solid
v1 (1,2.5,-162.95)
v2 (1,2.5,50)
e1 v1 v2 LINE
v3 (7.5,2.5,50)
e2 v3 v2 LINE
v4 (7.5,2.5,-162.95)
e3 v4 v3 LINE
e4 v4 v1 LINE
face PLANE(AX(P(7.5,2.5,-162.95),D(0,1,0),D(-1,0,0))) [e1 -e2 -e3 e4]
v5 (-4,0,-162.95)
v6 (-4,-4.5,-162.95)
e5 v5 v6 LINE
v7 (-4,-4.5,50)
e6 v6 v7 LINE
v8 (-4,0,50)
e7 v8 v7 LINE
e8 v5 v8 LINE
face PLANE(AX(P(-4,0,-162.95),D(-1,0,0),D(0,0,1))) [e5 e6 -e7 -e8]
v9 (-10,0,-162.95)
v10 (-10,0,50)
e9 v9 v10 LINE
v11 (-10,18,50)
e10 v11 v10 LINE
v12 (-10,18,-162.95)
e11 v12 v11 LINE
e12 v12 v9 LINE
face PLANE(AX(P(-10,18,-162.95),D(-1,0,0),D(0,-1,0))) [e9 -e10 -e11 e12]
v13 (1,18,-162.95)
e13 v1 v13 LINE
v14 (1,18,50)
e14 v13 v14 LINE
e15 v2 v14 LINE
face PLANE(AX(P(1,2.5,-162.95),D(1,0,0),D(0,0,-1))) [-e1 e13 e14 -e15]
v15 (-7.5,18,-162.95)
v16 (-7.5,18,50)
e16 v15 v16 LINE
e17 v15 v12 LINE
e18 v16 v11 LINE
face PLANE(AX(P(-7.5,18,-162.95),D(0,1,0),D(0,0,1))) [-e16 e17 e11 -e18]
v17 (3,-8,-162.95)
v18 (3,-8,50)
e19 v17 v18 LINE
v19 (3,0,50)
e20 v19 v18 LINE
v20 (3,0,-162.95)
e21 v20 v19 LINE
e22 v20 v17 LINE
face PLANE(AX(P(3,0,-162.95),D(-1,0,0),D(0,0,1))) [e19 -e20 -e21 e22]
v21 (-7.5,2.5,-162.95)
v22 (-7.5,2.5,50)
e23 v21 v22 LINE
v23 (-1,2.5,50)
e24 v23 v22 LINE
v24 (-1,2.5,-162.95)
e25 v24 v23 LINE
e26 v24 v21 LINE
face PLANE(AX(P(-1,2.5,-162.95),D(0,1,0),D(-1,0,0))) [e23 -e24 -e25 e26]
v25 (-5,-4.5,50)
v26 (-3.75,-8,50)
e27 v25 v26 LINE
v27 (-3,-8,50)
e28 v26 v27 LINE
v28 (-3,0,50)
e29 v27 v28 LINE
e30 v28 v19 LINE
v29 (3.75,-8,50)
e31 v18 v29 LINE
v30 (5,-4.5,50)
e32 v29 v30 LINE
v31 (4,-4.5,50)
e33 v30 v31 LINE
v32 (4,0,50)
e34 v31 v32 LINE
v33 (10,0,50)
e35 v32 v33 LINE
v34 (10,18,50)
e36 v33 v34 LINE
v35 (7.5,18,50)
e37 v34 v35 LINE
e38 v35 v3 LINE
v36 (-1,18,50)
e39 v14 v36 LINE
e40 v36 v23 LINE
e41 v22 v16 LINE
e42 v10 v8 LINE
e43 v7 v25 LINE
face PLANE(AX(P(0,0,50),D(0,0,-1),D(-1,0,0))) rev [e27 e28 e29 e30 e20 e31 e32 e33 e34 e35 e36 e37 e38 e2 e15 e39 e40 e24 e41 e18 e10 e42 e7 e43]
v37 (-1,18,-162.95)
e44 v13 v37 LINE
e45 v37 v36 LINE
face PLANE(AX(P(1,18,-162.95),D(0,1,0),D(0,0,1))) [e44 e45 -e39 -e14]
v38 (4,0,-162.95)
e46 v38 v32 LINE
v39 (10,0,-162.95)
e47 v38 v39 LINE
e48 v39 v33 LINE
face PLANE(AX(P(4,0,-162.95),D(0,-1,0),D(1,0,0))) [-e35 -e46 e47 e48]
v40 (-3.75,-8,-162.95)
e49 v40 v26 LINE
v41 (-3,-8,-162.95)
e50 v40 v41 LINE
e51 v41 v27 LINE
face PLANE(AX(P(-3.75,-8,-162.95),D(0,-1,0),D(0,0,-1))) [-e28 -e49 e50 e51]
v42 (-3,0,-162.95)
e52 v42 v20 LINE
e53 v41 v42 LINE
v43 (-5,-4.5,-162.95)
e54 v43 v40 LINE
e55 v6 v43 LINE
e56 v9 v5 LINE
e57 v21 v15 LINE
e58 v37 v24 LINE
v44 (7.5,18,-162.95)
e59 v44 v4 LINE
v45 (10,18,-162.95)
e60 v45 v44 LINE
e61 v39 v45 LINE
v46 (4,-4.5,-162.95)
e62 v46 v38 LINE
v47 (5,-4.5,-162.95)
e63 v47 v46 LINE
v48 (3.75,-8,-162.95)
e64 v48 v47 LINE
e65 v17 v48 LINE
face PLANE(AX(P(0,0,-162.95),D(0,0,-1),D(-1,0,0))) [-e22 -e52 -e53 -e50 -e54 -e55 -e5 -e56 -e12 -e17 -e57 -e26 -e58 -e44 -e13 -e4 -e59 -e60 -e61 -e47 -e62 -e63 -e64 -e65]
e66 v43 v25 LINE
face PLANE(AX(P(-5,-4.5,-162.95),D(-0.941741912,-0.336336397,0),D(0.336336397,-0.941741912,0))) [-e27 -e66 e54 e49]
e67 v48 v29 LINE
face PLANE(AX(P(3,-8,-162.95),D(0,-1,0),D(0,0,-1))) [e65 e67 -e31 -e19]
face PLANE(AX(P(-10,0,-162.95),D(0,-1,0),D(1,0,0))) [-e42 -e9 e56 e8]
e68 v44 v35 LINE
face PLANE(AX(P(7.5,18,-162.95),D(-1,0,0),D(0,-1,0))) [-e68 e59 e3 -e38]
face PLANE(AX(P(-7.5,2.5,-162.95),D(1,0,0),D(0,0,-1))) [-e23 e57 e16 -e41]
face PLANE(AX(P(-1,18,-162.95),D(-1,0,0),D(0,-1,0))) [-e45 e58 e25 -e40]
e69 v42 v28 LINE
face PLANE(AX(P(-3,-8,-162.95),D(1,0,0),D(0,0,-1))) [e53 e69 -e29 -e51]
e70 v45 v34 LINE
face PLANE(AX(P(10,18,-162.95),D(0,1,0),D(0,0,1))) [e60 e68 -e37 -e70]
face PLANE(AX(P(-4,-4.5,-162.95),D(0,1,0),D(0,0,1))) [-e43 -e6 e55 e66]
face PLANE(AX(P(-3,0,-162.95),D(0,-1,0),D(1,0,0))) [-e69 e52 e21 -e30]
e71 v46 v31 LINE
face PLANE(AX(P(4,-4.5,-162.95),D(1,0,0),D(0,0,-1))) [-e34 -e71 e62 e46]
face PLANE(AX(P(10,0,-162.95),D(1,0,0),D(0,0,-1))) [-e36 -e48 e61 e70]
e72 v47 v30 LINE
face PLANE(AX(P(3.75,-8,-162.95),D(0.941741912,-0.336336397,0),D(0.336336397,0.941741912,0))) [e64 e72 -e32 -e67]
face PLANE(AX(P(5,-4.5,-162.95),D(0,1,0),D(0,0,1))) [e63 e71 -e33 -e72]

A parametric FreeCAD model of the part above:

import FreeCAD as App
import Part
import Sketcher

V = App.Vector

doc = App.newDocument("Part")
body = doc.addObject("PartDesign::Body", "Body")

# Sketch on XY plane
sketch1 = body.newObject("Sketcher::SketchObject", "Sketch")
sketch1.AttachmentSupport = (doc.getObject("XY_Plane"), [""])
sketch1.MapMode = "FlatFace"
sketch1.AttachmentOffset = App.Placement(V(0, 0, 50), App.Rotation())
sketch1.addGeometry(Part.LineSegment(V(-1, 2.5, 0), V(-7.5, 2.5, 0)), False)
sketch1.addGeometry(Part.LineSegment(V(-7.5, 2.5, 0), V(-7.5, 18, 0)), False)
sketch1.addGeometry(Part.LineSegment(V(-7.5, 18, 0), V(-10, 18, 0)), False)
sketch1.addGeometry(Part.LineSegment(V(-10, 18, 0), V(-10, 0, 0)), False)
sketch1.addGeometry(Part.LineSegment(V(-10, 0, 0), V(-4, 0, 0)), False)
sketch1.addGeometry(Part.LineSegment(V(-4, 0, 0), V(-4, -4.5, 0)), False)
sketch1.addGeometry(Part.LineSegment(V(-4, -4.5, 0), V(-5, -4.5, 0)), False)
sketch1.addGeometry(Part.LineSegment(V(-5, -4.5, 0), V(-3.8, -8, 0)), False)
sketch1.addGeometry(Part.LineSegment(V(-3.8, -8, 0), V(-3, -8, 0)), False)
sketch1.addGeometry(Part.LineSegment(V(-3, -8, 0), V(-3, 0, 0)), False)
sketch1.addGeometry(Part.LineSegment(V(-3, 0, 0), V(3, 0, 0)), False)
sketch1.addGeometry(Part.LineSegment(V(3, 0, 0), V(3, -8, 0)), False)
sketch1.addGeometry(Part.LineSegment(V(3, -8, 0), V(3.8, -8, 0)), False)
sketch1.addGeometry(Part.LineSegment(V(3.8, -8, 0), V(5, -4.5, 0)), False)
sketch1.addGeometry(Part.LineSegment(V(5, -4.5, 0), V(4, -4.5, 0)), False)
sketch1.addGeometry(Part.LineSegment(V(4, -4.5, 0), V(4, 0, 0)), False)
sketch1.addGeometry(Part.LineSegment(V(4, 0, 0), V(10, 0, 0)), False)
sketch1.addGeometry(Part.LineSegment(V(10, 0, 0), V(10, 18, 0)), False)
sketch1.addGeometry(Part.LineSegment(V(10, 18, 0), V(7.5, 18, 0)), False)
sketch1.addGeometry(Part.LineSegment(V(7.5, 18, 0), V(7.5, 2.5, 0)), False)
sketch1.addGeometry(Part.LineSegment(V(7.5, 2.5, 0), V(1, 2.5, 0)), False)
sketch1.addGeometry(Part.LineSegment(V(1, 2.5, 0), V(1, 18, 0)), False)
sketch1.addGeometry(Part.LineSegment(V(1, 18, 0), V(-1, 18, 0)), False)
sketch1.addGeometry(Part.LineSegment(V(-1, 18, 0), V(-1, 2.5, 0)), False)
sketch1.addConstraint(Sketcher.Constraint("Coincident", 0, 2, 1, 1))
sketch1.addConstraint(Sketcher.Constraint("Coincident", 1, 2, 2, 1))
sketch1.addConstraint(Sketcher.Constraint("Coincident", 2, 2, 3, 1))
sketch1.addConstraint(Sketcher.Constraint("Coincident", 3, 2, 4, 1))
sketch1.addConstraint(Sketcher.Constraint("Coincident", 4, 2, 5, 1))
sketch1.addConstraint(Sketcher.Constraint("Coincident", 5, 2, 6, 1))
sketch1.addConstraint(Sketcher.Constraint("Coincident", 6, 2, 7, 1))
sketch1.addConstraint(Sketcher.Constraint("Coincident", 7, 2, 8, 1))
sketch1.addConstraint(Sketcher.Constraint("Coincident", 8, 2, 9, 1))
sketch1.addConstraint(Sketcher.Constraint("Coincident", 9, 2, 10, 1))
sketch1.addConstraint(Sketcher.Constraint("Coincident", 10, 2, 11, 1))
sketch1.addConstraint(Sketcher.Constraint("Coincident", 11, 2, 12, 1))
sketch1.addConstraint(Sketcher.Constraint("Coincident", 12, 2, 13, 1))
sketch1.addConstraint(Sketcher.Constraint("Coincident", 13, 2, 14, 1))
sketch1.addConstraint(Sketcher.Constraint("Coincident", 14, 2, 15, 1))
sketch1.addConstraint(Sketcher.Constraint("Coincident", 15, 2, 16, 1))
sketch1.addConstraint(Sketcher.Constraint("Coincident", 16, 2, 17, 1))
sketch1.addConstraint(Sketcher.Constraint("Coincident", 17, 2, 18, 1))
sketch1.addConstraint(Sketcher.Constraint("Coincident", 18, 2, 19, 1))
sketch1.addConstraint(Sketcher.Constraint("Coincident", 19, 2, 20, 1))
sketch1.addConstraint(Sketcher.Constraint("Coincident", 20, 2, 21, 1))
sketch1.addConstraint(Sketcher.Constraint("Coincident", 21, 2, 22, 1))
sketch1.addConstraint(Sketcher.Constraint("Coincident", 22, 2, 23, 1))
sketch1.addConstraint(Sketcher.Constraint("Coincident", 23, 2, 0, 1))
sketch1.addConstraint(Sketcher.Constraint("Horizontal", 0))
sketch1.addConstraint(Sketcher.Constraint("Vertical", 1))
sketch1.addConstraint(Sketcher.Constraint("Horizontal", 2))
sketch1.addConstraint(Sketcher.Constraint("Vertical", 3))
sketch1.addConstraint(Sketcher.Constraint("Horizontal", 4))
sketch1.addConstraint(Sketcher.Constraint("Vertical", 5))
sketch1.addConstraint(Sketcher.Constraint("Horizontal", 6))
sketch1.addConstraint(Sketcher.Constraint("Horizontal", 8))
sketch1.addConstraint(Sketcher.Constraint("Vertical", 9))
sketch1.addConstraint(Sketcher.Constraint("Horizontal", 10))
sketch1.addConstraint(Sketcher.Constraint("Vertical", 11))
sketch1.addConstraint(Sketcher.Constraint("Horizontal", 12))
sketch1.addConstraint(Sketcher.Constraint("Horizontal", 14))
sketch1.addConstraint(Sketcher.Constraint("Vertical", 15))
sketch1.addConstraint(Sketcher.Constraint("Horizontal", 16))
sketch1.addConstraint(Sketcher.Constraint("Vertical", 17))
sketch1.addConstraint(Sketcher.Constraint("Horizontal", 18))
sketch1.addConstraint(Sketcher.Constraint("Vertical", 19))
sketch1.addConstraint(Sketcher.Constraint("Horizontal", 20))
sketch1.addConstraint(Sketcher.Constraint("Vertical", 21))
sketch1.addConstraint(Sketcher.Constraint("Horizontal", 22))
sketch1.addConstraint(Sketcher.Constraint("Vertical", 23))
sketch1.addConstraint(Sketcher.Constraint("Symmetric", 9, 2, 10, 2, -1, 1))
sketch1.addConstraint(Sketcher.Constraint("Symmetric", 4, 2, 15, 2, -1, 1))
sketch1.addConstraint(Sketcher.Constraint("Symmetric", 7, 2, 12, 2, -2))
sketch1.addConstraint(Sketcher.Constraint("Symmetric", 6, 2, 13, 2, -2))
sketch1.addConstraint(Sketcher.Constraint("Symmetric", 3, 2, 16, 2, -2))
sketch1.addConstraint(Sketcher.Constraint("Symmetric", 1, 2, 18, 2, -2))
sketch1.addConstraint(Sketcher.Constraint("Symmetric", 20, 2, 23, 2, -2))
sketch1.addConstraint(Sketcher.Constraint("Horizontal", 18, 2, 21, 2))
sketch1.addConstraint(Sketcher.Constraint("Equal", 4, 10))
sketch1.addConstraint(Sketcher.Constraint("DistanceX", 4, 1, 4, 2, 6.0))
sketch1.addConstraint(Sketcher.Constraint("DistanceX", 6, 2, 6, 1, 1.0))
sketch1.addConstraint(Sketcher.Constraint("DistanceX", 22, 2, 22, 1, 2.0))
sketch1.addConstraint(Sketcher.Constraint("DistanceY", 3, 2, 3, 1, 18.0))
sketch1.addConstraint(Sketcher.Constraint("DistanceY", 9, 1, 9, 2, 8.0))
sketch1.addConstraint(Sketcher.Constraint("DistanceX", 0, 2, 0, 1, 6.5))
sketch1.addConstraint(Sketcher.Constraint("DistanceX", 2, 2, 2, 1, 2.5))
sketch1.addConstraint(Sketcher.Constraint("DistanceY", 1, 1, 1, 2, 15.5))
sketch1.addConstraint(Sketcher.Constraint("DistanceY", 5, 2, 5, 1, 4.5))
sketch1.addConstraint(Sketcher.Constraint("DistanceX", 8, 1, 8, 2, 0.75))
pad1 = body.newObject("PartDesign::Pad", "Pad")
pad1.Profile = sketch1
pad1.Length = 212.95
pad1.Reversed = True

doc.recompute()
